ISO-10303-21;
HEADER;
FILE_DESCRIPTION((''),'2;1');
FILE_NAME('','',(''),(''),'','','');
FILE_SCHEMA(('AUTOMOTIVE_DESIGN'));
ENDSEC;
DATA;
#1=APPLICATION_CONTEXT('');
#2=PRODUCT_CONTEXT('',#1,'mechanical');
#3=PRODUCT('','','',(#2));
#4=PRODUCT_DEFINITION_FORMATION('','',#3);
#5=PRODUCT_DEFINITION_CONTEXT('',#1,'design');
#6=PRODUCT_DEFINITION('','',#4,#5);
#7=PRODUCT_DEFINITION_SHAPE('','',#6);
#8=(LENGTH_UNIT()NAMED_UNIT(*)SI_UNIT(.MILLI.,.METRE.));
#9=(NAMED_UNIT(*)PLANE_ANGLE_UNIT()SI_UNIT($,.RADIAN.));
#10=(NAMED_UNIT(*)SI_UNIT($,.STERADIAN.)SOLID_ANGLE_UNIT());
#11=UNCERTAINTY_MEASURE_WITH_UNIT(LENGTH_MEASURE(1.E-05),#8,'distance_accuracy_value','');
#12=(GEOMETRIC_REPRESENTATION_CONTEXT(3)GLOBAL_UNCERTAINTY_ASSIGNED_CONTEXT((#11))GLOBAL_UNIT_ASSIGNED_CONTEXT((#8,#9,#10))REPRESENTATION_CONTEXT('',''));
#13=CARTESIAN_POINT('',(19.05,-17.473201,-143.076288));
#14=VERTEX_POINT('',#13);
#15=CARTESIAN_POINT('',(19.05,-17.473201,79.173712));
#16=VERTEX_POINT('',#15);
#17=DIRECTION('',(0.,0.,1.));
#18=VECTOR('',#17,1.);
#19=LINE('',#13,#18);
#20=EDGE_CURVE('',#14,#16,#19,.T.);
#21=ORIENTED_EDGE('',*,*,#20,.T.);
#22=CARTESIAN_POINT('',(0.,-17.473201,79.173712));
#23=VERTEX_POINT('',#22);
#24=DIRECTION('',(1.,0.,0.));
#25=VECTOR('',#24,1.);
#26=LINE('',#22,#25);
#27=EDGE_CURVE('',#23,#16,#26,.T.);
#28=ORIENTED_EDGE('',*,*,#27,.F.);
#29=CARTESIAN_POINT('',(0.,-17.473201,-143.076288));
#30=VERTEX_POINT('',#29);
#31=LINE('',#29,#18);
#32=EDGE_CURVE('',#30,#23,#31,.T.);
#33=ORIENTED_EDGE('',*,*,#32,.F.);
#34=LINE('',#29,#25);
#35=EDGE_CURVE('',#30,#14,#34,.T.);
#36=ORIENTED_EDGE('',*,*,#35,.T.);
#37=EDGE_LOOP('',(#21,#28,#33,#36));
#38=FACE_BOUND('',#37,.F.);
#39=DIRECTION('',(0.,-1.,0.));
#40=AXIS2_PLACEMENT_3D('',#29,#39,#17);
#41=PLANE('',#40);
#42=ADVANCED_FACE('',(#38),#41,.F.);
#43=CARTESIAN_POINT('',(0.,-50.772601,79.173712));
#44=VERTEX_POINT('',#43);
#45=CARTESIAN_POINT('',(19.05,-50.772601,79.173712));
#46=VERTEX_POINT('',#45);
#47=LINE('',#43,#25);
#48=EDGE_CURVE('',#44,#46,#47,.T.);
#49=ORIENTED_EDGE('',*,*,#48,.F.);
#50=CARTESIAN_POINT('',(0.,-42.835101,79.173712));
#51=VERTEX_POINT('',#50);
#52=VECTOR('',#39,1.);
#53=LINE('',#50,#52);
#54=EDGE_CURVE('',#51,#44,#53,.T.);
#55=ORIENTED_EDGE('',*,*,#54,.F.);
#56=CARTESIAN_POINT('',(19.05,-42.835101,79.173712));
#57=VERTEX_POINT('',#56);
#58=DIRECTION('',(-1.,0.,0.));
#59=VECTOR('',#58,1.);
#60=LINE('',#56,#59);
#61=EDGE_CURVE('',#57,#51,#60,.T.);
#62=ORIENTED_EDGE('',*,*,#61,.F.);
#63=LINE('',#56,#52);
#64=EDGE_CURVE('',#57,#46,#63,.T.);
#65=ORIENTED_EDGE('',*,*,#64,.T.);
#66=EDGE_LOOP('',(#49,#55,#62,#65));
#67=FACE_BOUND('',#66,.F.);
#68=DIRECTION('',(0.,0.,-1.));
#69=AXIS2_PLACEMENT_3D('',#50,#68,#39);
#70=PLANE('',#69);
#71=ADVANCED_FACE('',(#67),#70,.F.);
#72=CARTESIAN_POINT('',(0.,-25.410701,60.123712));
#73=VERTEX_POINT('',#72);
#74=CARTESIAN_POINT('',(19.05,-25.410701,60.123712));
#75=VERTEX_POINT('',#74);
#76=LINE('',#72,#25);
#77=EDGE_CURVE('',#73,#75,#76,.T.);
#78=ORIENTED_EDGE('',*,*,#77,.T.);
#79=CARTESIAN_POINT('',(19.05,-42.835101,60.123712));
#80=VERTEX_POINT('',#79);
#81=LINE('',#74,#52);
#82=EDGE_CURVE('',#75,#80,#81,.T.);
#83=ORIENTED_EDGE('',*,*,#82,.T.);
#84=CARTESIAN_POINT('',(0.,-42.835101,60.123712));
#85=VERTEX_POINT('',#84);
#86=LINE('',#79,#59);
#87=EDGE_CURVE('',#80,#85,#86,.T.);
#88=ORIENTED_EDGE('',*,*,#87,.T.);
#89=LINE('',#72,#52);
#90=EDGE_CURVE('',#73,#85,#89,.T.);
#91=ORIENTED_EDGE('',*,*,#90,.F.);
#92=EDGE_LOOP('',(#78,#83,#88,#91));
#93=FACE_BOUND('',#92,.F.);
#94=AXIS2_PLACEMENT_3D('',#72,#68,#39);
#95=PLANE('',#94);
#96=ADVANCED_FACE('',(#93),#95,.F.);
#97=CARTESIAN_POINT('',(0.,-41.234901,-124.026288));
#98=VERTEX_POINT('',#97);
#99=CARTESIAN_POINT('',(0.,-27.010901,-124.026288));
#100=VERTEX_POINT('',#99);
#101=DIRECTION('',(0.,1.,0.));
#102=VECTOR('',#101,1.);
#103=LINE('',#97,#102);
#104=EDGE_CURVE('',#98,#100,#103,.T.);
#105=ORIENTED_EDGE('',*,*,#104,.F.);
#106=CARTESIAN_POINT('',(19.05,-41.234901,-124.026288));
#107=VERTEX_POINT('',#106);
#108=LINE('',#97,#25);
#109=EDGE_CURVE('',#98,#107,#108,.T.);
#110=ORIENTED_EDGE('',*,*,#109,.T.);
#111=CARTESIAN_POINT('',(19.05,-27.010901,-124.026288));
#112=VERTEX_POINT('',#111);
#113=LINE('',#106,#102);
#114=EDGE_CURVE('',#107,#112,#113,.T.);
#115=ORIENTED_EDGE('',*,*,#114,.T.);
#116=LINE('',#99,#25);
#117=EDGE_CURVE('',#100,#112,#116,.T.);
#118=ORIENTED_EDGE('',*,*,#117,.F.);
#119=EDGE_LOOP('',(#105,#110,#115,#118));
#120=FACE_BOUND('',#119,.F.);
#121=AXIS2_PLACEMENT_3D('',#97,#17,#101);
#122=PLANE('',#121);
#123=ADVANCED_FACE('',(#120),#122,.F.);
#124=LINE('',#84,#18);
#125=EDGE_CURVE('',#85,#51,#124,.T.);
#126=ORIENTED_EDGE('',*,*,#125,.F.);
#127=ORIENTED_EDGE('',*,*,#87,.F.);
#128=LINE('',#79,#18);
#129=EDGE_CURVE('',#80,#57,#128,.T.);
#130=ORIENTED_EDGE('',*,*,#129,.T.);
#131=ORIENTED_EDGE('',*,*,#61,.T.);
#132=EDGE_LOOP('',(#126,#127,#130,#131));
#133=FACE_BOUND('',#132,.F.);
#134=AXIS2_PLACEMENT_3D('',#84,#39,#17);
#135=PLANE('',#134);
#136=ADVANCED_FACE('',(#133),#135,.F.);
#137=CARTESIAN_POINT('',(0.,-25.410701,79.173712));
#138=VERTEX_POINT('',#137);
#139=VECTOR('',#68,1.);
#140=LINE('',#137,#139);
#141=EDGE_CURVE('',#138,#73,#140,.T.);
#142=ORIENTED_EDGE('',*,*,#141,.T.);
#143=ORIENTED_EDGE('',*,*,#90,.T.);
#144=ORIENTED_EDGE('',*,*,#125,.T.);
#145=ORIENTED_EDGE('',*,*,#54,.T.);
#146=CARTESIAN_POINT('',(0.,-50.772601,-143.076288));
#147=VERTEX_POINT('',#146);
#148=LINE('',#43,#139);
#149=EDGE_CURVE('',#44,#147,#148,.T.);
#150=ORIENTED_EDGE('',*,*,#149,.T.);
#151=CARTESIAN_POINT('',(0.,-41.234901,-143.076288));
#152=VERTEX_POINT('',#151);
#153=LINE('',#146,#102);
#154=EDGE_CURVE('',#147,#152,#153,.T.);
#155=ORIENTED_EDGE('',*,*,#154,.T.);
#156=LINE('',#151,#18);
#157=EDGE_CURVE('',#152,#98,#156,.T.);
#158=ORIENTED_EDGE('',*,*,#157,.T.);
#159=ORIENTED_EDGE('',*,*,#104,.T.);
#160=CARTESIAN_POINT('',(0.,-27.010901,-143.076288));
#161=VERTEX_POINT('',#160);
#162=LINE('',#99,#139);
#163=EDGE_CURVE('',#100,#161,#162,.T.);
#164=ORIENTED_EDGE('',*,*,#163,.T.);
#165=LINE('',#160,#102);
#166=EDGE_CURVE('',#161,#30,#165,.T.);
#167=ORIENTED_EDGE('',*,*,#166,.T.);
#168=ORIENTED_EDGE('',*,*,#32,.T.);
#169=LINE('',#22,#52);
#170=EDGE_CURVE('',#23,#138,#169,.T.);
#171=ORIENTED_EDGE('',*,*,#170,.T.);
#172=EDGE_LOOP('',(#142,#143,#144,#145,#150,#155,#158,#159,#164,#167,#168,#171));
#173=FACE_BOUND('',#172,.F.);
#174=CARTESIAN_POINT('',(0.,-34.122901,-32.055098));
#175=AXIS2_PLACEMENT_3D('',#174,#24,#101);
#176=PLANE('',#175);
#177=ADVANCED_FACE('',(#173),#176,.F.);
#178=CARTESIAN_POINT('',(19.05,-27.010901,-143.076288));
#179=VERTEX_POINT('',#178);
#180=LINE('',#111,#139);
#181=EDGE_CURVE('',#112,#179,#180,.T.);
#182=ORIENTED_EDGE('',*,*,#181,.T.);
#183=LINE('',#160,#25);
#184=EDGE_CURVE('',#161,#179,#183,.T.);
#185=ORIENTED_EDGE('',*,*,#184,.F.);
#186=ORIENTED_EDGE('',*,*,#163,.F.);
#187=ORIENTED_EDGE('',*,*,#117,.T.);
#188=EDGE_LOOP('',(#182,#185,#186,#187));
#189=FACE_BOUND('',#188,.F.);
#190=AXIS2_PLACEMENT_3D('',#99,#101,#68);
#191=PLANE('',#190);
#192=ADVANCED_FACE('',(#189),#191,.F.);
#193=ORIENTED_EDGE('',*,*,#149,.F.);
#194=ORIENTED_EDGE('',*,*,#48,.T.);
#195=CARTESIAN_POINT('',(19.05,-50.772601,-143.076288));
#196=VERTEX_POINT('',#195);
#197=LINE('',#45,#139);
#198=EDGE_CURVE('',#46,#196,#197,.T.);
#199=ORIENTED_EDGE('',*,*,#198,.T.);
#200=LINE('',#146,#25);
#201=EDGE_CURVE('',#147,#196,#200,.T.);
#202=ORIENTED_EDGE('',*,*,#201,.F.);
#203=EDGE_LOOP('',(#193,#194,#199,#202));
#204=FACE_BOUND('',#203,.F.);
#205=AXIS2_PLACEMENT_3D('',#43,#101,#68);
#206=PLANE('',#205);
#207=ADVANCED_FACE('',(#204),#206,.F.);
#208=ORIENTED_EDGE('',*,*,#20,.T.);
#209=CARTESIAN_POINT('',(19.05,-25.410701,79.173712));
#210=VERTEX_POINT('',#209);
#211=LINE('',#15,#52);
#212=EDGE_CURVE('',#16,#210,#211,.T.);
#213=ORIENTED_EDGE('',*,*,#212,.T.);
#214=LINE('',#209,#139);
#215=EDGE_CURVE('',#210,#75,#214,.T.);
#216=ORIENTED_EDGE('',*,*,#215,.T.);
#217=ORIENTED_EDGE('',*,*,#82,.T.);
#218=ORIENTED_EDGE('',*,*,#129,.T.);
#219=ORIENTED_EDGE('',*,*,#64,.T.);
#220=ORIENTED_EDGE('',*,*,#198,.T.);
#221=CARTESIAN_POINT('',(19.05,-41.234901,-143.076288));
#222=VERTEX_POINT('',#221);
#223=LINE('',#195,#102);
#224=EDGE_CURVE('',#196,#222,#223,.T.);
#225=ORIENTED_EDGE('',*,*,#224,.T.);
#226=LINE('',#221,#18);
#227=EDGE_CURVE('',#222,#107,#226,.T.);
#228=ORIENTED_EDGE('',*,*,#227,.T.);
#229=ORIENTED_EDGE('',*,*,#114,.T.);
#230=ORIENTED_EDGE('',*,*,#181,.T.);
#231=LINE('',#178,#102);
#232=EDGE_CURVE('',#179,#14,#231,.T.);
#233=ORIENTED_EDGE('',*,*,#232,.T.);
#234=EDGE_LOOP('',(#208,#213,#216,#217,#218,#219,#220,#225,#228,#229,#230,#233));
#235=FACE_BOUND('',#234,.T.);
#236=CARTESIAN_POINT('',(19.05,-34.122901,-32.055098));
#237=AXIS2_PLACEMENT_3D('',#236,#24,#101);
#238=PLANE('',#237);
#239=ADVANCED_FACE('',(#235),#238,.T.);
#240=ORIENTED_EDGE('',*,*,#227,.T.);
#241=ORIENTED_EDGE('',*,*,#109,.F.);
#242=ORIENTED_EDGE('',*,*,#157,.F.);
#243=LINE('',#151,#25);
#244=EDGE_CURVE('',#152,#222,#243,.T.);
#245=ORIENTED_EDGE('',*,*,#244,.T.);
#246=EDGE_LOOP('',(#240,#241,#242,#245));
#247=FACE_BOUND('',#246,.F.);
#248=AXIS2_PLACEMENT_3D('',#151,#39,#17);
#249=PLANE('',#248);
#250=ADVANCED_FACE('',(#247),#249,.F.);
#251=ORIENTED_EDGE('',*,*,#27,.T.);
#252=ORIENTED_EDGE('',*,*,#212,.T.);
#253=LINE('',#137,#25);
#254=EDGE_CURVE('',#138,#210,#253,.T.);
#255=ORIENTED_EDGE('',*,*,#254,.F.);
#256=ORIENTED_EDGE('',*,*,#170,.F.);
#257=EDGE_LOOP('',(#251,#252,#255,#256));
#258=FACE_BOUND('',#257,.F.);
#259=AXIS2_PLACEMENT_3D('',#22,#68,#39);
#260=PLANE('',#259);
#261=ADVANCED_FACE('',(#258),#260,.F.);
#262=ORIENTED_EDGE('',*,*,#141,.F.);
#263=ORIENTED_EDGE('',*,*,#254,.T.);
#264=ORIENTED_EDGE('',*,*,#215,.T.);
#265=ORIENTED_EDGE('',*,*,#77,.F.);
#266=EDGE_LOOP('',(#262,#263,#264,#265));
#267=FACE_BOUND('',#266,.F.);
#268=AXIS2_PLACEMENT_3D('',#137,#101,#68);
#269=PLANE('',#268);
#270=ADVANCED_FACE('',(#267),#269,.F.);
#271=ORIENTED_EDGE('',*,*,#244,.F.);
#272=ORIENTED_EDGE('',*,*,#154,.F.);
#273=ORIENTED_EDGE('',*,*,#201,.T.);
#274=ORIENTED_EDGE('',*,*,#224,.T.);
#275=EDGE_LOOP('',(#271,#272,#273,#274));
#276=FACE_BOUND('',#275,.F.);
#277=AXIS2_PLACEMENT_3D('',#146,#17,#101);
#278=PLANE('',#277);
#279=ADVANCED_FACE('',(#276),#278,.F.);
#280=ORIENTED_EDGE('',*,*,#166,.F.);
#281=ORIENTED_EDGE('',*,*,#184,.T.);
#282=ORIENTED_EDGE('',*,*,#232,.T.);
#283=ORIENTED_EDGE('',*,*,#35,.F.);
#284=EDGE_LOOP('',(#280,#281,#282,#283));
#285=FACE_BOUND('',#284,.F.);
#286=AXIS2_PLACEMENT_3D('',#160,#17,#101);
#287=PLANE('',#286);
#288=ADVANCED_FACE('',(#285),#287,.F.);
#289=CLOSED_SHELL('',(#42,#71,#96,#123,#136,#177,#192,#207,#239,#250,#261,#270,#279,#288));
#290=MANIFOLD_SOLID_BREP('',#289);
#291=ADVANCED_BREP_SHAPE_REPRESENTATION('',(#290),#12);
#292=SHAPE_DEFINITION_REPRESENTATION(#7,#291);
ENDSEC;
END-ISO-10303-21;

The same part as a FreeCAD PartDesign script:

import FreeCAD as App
import Part
import Sketcher

V = App.Vector
Q = App.Units.Quantity

doc = App.newDocument("Part")
body = doc.addObject("PartDesign::Body", "Body")

# Sketch on YZ plane
sketch1 = doc.addObject("Sketcher::SketchObject", "Sketch")
body.addObject(sketch1)
sketch1.AttachmentSupport = (doc.YZ_Plane, [""])
sketch1.MapMode = "FlatFace"
sketch1.addGeometry([
    Part.LineSegment(V(-43, 79, 0), V(-51, 79, 0)),  # 0
    Part.LineSegment(V(-51, 79, 0), V(-51, -143, 0)),  # 1
    Part.LineSegment(V(-51, -143, 0), V(-41, -143, 0)),  # 2
    Part.LineSegment(V(-41, -143, 0), V(-41, -124, 0)),  # 3
    Part.LineSegment(V(-41, -124, 0), V(-27, -124, 0)),  # 4
    Part.LineSegment(V(-27, -124, 0), V(-27, -143, 0)),  # 5
    Part.LineSegment(V(-27, -143, 0), V(-17, -143, 0)),  # 6
    Part.LineSegment(V(-17, -143, 0), V(-17, 79, 0)),  # 7
    Part.LineSegment(V(-17, 79, 0), V(-25, 79, 0)),  # 8
    Part.LineSegment(V(-25, 79, 0), V(-25, 60, 0)),  # 9
    Part.LineSegment(V(-25, 60, 0), V(-43, 60, 0)),  # 10
    Part.LineSegment(V(-43, 60, 0), V(-43, 79, 0)),  # 11
], False)
sketch1.addConstraint([
    Sketcher.Constraint("Coincident", 0, 2, 1, 1),
    Sketcher.Constraint("Coincident", 1, 2, 2, 1),
    Sketcher.Constraint("Coincident", 2, 2, 3, 1),
    Sketcher.Constraint("Coincident", 3, 2, 4, 1),
    Sketcher.Constraint("Coincident", 4, 2, 5, 1),
    Sketcher.Constraint("Coincident", 5, 2, 6, 1),
    Sketcher.Constraint("Coincident", 6, 2, 7, 1),
    Sketcher.Constraint("Coincident", 7, 2, 8, 1),
    Sketcher.Constraint("Coincident", 8, 2, 9, 1),
    Sketcher.Constraint("Coincident", 9, 2, 10, 1),
    Sketcher.Constraint("Coincident", 10, 2, 11, 1),
    Sketcher.Constraint("Coincident", 11, 2, 0, 1),
    Sketcher.Constraint("Horizontal", 0),
    Sketcher.Constraint("Vertical", 1),
    Sketcher.Constraint("Horizontal", 2),
    Sketcher.Constraint("Vertical", 3),
    Sketcher.Constraint("Horizontal", 4),
    Sketcher.Constraint("Vertical", 5),
    Sketcher.Constraint("Horizontal", 6),
    Sketcher.Constraint("Vertical", 7),
    Sketcher.Constraint("Horizontal", 8),
    Sketcher.Constraint("Vertical", 9),
    Sketcher.Constraint("Horizontal", 10),
    Sketcher.Constraint("Vertical", 11),
    Sketcher.Constraint("Horizontal", 2, 2, 5, 2),
    Sketcher.Constraint("Horizontal", 0, 2, 7, 2),
    Sketcher.Constraint("Equal", 2, 6),
    Sketcher.Constraint("Equal", 0, 8),
    Sketcher.Constraint("Equal", 5, 9),
    Sketcher.Constraint("DistanceY", 3, 2, 0, 2, Q("8 in")),
    Sketcher.Constraint("DistanceX", 4, 1, 4, 2, Q("0.56 in")),
    Sketcher.Constraint("DistanceY", 1, 2, 1, 1, Q("8.75 in")),
    Sketcher.Constraint("DistanceX", 0, 2, 0, 1, Q("0.3125 in")),
    Sketcher.Constraint("DistanceX", 10, 2, 10, 1, Q("0.686 in")),
    Sketcher.Constraint("DistanceX", 0, 2, -1, 1, Q("50.772601 mm")),
    Sketcher.Constraint("DistanceY", -1, 1, 0, 2, Q("79.173712 mm")),
])
pad1 = doc.addObject("PartDesign::Pad", "Pad")
body.addObject(pad1)
pad1.Profile = sketch1
pad1.Length = Q("0.75 in")

# Sketch on YZ plane
sketch2 = doc.addObject("Sketcher::SketchObject", "Sketch001")
body.addObject(sketch2)
sketch2.AttachmentSupport = (doc.YZ_Plane, [""])
sketch2.MapMode = "FlatFace"
sketch2.addGeometry([
    Part.LineSegment(V(-43, 79, 0), V(-51, 79, 0)),  # 0
    Part.LineSegment(V(-51, 79, 0), V(-51, -143, 0)),  # 1
    Part.LineSegment(V(-51, -143, 0), V(-41, -143, 0)),  # 2
    Part.LineSegment(V(-41, -143, 0), V(-41, -124, 0)),  # 3
    Part.LineSegment(V(-41, -124, 0), V(-27, -124, 0)),  # 4
    Part.LineSegment(V(-27, -124, 0), V(-27, -143, 0)),  # 5
    Part.LineSegment(V(-27, -143, 0), V(-17, -143, 0)),  # 6
    Part.LineSegment(V(-17, -143, 0), V(-17, 79, 0)),  # 7
    Part.LineSegment(V(-17, 79, 0), V(-25, 79, 0)),  # 8
    Part.LineSegment(V(-25, 79, 0), V(-25, 60, 0)),  # 9
    Part.LineSegment(V(-25, 60, 0), V(-43, 60, 0)),  # 10
    Part.LineSegment(V(-43, 60, 0), V(-43, 79, 0)),  # 11
], False)
sketch2.addConstraint([
    Sketcher.Constraint("Coincident", 0, 2, 1, 1),
    Sketcher.Constraint("Coincident", 1, 2, 2, 1),
    Sketcher.Constraint("Coincident", 2, 2, 3, 1),
    Sketcher.Constraint("Coincident", 3, 2, 4, 1),
    Sketcher.Constraint("Coincident", 4, 2, 5, 1),
    Sketcher.Constraint("Coincident", 5, 2, 6, 1),
    Sketcher.Constraint("Coincident", 6, 2, 7, 1),
    Sketcher.Constraint("Coincident", 7, 2, 8, 1),
    Sketcher.Constraint("Coincident", 8, 2, 9, 1),
    Sketcher.Constraint("Coincident", 9, 2, 10, 1),
    Sketcher.Constraint("Coincident", 10, 2, 11, 1),
    Sketcher.Constraint("Coincident", 11, 2, 0, 1),
    Sketcher.Constraint("Horizontal", 0),
    Sketcher.Constraint("Vertical", 1),
    Sketcher.Constraint("Horizontal", 2),
    Sketcher.Constraint("Vertical", 3),
    Sketcher.Constraint("Horizontal", 4),
    Sketcher.Constraint("Vertical", 5),
    Sketcher.Constraint("Horizontal", 6),
    Sketcher.Constraint("Vertical", 7),
    Sketcher.Constraint("Horizontal", 8),
    Sketcher.Constraint("Vertical", 9),
    Sketcher.Constraint("Horizontal", 10),
    Sketcher.Constraint("Vertical", 11),
    Sketcher.Constraint("Horizontal", 2, 2, 5, 2),
    Sketcher.Constraint("Horizontal", 0, 2, 7, 2),
    Sketcher.Constraint("Equal", 2, 6),
    Sketcher.Constraint("Equal", 0, 8),
    Sketcher.Constraint("Equal", 5, 9),
    Sketcher.Constraint("DistanceY", 3, 2, 0, 2, Q("8 in")),
    Sketcher.Constraint("DistanceX", 4, 1, 4, 2, Q("0.56 in")),
    Sketcher.Constraint("DistanceY", 1, 2, 1, 1, Q("8.75 in")),
    Sketcher.Constraint("DistanceX", 0, 2, 0, 1, Q("0.3125 in")),
    Sketcher.Constraint("DistanceX", 10, 2, 10, 1, Q("0.686 in")),
    Sketcher.Constraint("DistanceX", 0, 2, -1, 1, Q("50.772601 mm")),
    Sketcher.Constraint("DistanceY", -1, 1, 0, 2, Q("79.173712 mm")),
])
pad2 = doc.addObject("PartDesign::Pad", "Pad001")
body.addObject(pad2)
pad2.Profile = sketch2
pad2.Length = Q("0.375 in")

doc.recompute()
